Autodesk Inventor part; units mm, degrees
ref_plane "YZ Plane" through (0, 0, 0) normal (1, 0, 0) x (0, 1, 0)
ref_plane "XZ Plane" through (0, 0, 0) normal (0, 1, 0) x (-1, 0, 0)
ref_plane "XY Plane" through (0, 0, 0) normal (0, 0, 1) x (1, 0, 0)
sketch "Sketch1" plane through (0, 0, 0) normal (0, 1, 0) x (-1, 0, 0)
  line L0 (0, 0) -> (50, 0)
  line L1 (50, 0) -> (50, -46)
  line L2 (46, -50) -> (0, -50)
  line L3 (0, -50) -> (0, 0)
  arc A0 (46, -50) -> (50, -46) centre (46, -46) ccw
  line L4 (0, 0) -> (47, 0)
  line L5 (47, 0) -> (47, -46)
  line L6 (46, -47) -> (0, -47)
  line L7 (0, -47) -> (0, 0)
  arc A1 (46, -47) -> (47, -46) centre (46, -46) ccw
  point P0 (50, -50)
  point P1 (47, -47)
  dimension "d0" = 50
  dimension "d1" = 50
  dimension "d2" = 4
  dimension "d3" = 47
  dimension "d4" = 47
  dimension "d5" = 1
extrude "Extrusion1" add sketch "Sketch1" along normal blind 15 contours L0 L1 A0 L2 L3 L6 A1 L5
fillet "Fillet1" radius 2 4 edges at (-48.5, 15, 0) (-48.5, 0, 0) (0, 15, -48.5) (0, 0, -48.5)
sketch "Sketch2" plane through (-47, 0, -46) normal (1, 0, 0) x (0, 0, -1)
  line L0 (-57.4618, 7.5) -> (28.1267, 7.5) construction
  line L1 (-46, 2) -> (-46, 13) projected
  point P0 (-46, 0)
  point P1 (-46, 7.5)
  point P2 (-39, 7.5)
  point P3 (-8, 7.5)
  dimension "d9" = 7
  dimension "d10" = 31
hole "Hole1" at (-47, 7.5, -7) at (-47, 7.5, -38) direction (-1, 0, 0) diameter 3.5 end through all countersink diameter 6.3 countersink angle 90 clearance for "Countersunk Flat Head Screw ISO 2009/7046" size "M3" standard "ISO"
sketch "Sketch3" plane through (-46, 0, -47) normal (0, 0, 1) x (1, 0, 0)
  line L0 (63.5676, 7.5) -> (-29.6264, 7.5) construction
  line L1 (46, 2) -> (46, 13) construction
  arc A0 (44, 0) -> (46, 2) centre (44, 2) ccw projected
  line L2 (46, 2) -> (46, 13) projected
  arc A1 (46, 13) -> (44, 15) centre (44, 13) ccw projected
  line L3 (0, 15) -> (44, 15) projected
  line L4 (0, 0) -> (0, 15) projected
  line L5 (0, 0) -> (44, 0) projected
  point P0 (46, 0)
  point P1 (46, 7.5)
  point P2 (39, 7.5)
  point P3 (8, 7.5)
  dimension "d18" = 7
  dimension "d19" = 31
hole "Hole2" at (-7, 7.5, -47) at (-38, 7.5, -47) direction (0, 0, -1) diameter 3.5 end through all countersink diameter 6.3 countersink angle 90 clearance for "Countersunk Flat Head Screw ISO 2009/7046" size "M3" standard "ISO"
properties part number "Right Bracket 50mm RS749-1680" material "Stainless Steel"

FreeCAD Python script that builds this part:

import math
import FreeCAD as App
import Part
import Sketcher
Q = App.Units.Quantity


def edges_at(feature, points):
    """Names of the edges that pass closest to the given points."""
    edges = feature.Shape.Edges
    near = lambda p: min(range(len(edges)), key=lambda i: edges[i].distToShape(Part.Vertex(*p))[0])
    return sorted({f"Edge{near(p) + 1}" for p in points})

doc = App.newDocument("Part")
body = doc.addObject("PartDesign::Body", "Body")

# Sketch on XZ plane
sketch1 = body.newObject("Sketcher::SketchObject", "Sketch")
sketch1.AttachmentSupport = (doc.getObject("XZ_Plane"), [""])
sketch1.MapMode = "FlatFace"
sketch1.addGeometry(Part.LineSegment(App.Vector(-50, 0, 0), App.Vector(-47, 0, 0)), False)
sketch1.addGeometry(Part.LineSegment(App.Vector(-47, 0, 0), App.Vector(-47, -46, 0)), False)
sketch1.addGeometry(Part.ArcOfCircle(Part.Circle(App.Vector(-46, -46, 0), App.Vector(0, 0, 1), 1), math.radians(180), math.radians(270)), False)
sketch1.addGeometry(Part.LineSegment(App.Vector(-46, -47, 0), App.Vector(0, -47, 0)), False)
sketch1.addGeometry(Part.LineSegment(App.Vector(0, -47, 0), App.Vector(0, -50, 0)), False)
sketch1.addGeometry(Part.LineSegment(App.Vector(0, -50, 0), App.Vector(-46, -50, 0)), False)
sketch1.addGeometry(Part.ArcOfCircle(Part.Circle(App.Vector(-46, -46, 0), App.Vector(0, 0, 1), 4), math.radians(180), math.radians(270)), False)
sketch1.addGeometry(Part.LineSegment(App.Vector(-50, -46, 0), App.Vector(-50, 0, 0)), False)
sketch1.addConstraint(Sketcher.Constraint("Coincident", 0, 2, 1, 1))
sketch1.addConstraint(Sketcher.Constraint("Tangent", 1, 2, 2, 1))
sketch1.addConstraint(Sketcher.Constraint("Tangent", 2, 2, 3, 1))
sketch1.addConstraint(Sketcher.Constraint("Coincident", 3, 2, 4, 1))
sketch1.addConstraint(Sketcher.Constraint("Coincident", 4, 2, 5, 1))
sketch1.addConstraint(Sketcher.Constraint("Tangent", 5, 2, 6, 2))
sketch1.addConstraint(Sketcher.Constraint("Tangent", 6, 1, 7, 1))
sketch1.addConstraint(Sketcher.Constraint("Coincident", 7, 2, 0, 1))
sketch1.addConstraint(Sketcher.Constraint("Horizontal", 0))
sketch1.addConstraint(Sketcher.Constraint("Vertical", 1))
sketch1.addConstraint(Sketcher.Constraint("Horizontal", 3))
sketch1.addConstraint(Sketcher.Constraint("Vertical", 4))
sketch1.addConstraint(Sketcher.Constraint("Horizontal", 5))
sketch1.addConstraint(Sketcher.Constraint("Vertical", 7))
sketch1.addConstraint(Sketcher.Constraint("Coincident", 6, 3, 2, 3))
sketch1.addConstraint(Sketcher.Constraint("PointOnObject", 0, 2, -1))
sketch1.addConstraint(Sketcher.Constraint("PointOnObject", 3, 2, -2))
sketch1.addConstraint(Sketcher.Constraint("Equal", 5, 1))
sketch1.addConstraint(Sketcher.Constraint("Radius", 2, Q("1 mm")))
sketch1.addConstraint(Sketcher.Constraint("Radius", 6, Q("4 mm")))
sketch1.addConstraint(Sketcher.Constraint("DistanceX", 0, 2, -1, 1, Q("47 mm")))
pad1 = body.newObject("PartDesign::Pad", "Pad")
pad1.Profile = sketch1
pad1.Length = 15
pad1.Reversed = True
doc.recompute()

fillet = body.newObject("PartDesign::Fillet", "Fillet")
fillet.Base = (pad1, edges_at(pad1, [
    (-48.5, 15, 0),
    (-48.5, 0, 0),
    (0, 15, -48.5),
    (0, 0, -48.5),
]))
fillet.Radius = 2

# Sketch on YZ plane
sketch2 = body.newObject("Sketcher::SketchObject", "Sketch001")
sketch2.AttachmentSupport = (doc.getObject("YZ_Plane"), [""])
sketch2.MapMode = "FlatFace"
sketch2.AttachmentOffset = App.Placement(App.Vector(0, 0, -47), App.Rotation())
sketch2.addGeometry(Part.Circle(App.Vector(7.5, -7, 0), App.Vector(0, 0, 1), 1.75), False)
sketch2.addGeometry(Part.Circle(App.Vector(7.5, -38, 0), App.Vector(0, 0, 1), 1.75), False)
sketch2.addConstraint(Sketcher.Constraint("Equal", 0, 1))
sketch2.addConstraint(Sketcher.Constraint("Vertical", 0, 3, 1, 3))
sketch2.addConstraint(Sketcher.Constraint("Diameter", 0, Q("3.5 mm")))
sketch2.addConstraint(Sketcher.Constraint("DistanceY", 0, 3, -1, 1, Q("7 mm")))
sketch2.addConstraint(Sketcher.Constraint("DistanceY", 1, 3, -1, 1, Q("38 mm")))
sketch2.addConstraint(Sketcher.Constraint("DistanceX", -1, 1, 0, 3, Q("7.5 mm")))
doc.recompute()
hole = body.newObject("PartDesign::Hole", "Hole")
hole.Profile = sketch2
hole.ThreadType = "None"
hole.Diameter = 3.5
hole.DepthType = "ThroughAll"
hole.HoleCutType = "Countersink"
hole.HoleCutDiameter = 6.3
hole.HoleCutCountersinkAngle = 90

# Sketch on XY plane
sketch3 = body.newObject("Sketcher::SketchObject", "Sketch002")
sketch3.AttachmentSupport = (doc.getObject("XY_Plane"), [""])
sketch3.MapMode = "FlatFace"
sketch3.AttachmentOffset = App.Placement(App.Vector(0, 0, -47), App.Rotation())
sketch3.addGeometry(Part.Circle(App.Vector(-7, 7.5, 0), App.Vector(0, 0, 1), 1.75), False)
sketch3.addGeometry(Part.Circle(App.Vector(-38, 7.5, 0), App.Vector(0, 0, 1), 1.75), False)
sketch3.addConstraint(Sketcher.Constraint("Equal", 0, 1))
sketch3.addConstraint(Sketcher.Constraint("Horizontal", 0, 3, 1, 3))
sketch3.addConstraint(Sketcher.Constraint("Diameter", 0, Q("3.5 mm")))
sketch3.addConstraint(Sketcher.Constraint("DistanceX", 0, 3, -1, 1, Q("7 mm")))
sketch3.addConstraint(Sketcher.Constraint("DistanceX", 1, 3, -1, 1, Q("38 mm")))
sketch3.addConstraint(Sketcher.Constraint("DistanceY", -1, 1, 0, 3, Q("7.5 mm")))
doc.recompute()
hole2 = body.newObject("PartDesign::Hole", "Hole001")
hole2.Profile = sketch3
hole2.ThreadType = "None"
hole2.Diameter = 3.5
hole2.DepthType = "ThroughAll"
hole2.HoleCutType = "Countersink"
hole2.HoleCutDiameter = 6.3
hole2.HoleCutCountersinkAngle = 90

doc.recompute()
